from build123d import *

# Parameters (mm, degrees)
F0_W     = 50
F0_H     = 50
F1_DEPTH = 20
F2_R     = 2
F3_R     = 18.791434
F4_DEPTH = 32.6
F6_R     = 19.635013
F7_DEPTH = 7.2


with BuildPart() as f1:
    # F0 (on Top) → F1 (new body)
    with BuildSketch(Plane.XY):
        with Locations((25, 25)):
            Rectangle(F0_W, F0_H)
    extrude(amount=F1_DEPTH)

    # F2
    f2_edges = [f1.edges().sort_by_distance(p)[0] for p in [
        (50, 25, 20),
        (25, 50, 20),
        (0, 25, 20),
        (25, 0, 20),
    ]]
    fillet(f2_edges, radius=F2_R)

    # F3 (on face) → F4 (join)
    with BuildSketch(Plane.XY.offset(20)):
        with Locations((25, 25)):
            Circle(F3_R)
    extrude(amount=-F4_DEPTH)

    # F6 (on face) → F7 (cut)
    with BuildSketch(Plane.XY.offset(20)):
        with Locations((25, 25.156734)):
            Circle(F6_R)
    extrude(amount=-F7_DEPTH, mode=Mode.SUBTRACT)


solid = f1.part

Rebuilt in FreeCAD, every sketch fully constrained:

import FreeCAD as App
import Part
import Sketcher


def edges_at(feature, points):
    """Names of the edges that pass closest to the given points."""
    edges = feature.Shape.Edges
    near = lambda p: min(range(len(edges)), key=lambda i: edges[i].distToShape(Part.Vertex(*p))[0])
    return sorted({f"Edge{near(p) + 1}" for p in points})


def add_polygon(sketch, points):
    """Adds a closed chain of lines whose ends are joined by coincident constraints."""
    first, n = sketch.GeometryCount, len(points)
    for a, b in zip(points, points[1:] + points[:1]):
        sketch.addGeometry(Part.LineSegment(App.Vector(*a, 0), App.Vector(*b, 0)), False)
    for i in range(n):
        sketch.addConstraint(Sketcher.Constraint("Coincident", first + i, 2, first + (i + 1) % n, 1))

doc = App.newDocument("Part")
params = doc.addObject("Spreadsheet::Sheet", "Params")
for row, (alias, value) in enumerate([
    ("sketch1_width", "50 mm"),
    ("pad1_length", "20 mm"),
    ("fillet_radius", "2 mm"),
    ("pad2_length", "32.6 mm"),
    ("pocket1_length", "7.2 mm"),
], start=1):
    params.set(f"A{row}", alias)
    params.set(f"B{row}", "=" + value)
    params.setAlias(f"B{row}", alias)

body = doc.addObject("PartDesign::Body", "Body")

sketch1 = doc.addObject("Sketcher::SketchObject", "Sketch")
body.addObject(sketch1)
sketch1.AttachmentSupport = (doc.XY_Plane, [""])
sketch1.MapMode = "FlatFace"
add_polygon(sketch1, [(0, 50), (0, 0), (50, 0), (50, 50)])
sketch1.addConstraint(Sketcher.Constraint("Vertical", 0))
sketch1.addConstraint(Sketcher.Constraint("Horizontal", 1))
sketch1.addConstraint(Sketcher.Constraint("Vertical", 2))
sketch1.addConstraint(Sketcher.Constraint("Horizontal", 3))
sketch1.addConstraint(Sketcher.Constraint("Coincident", 0, 2, -1, 1))
sketch1.addConstraint(Sketcher.Constraint("Equal", 3, 0))
sketch1.addConstraint(Sketcher.Constraint("DistanceX", 1, 1, 1, 2, 50.0))
sketch1.setExpression("Constraints[10]", "Params.sketch1_width")
pad1 = doc.addObject("PartDesign::Pad", "Pad")
body.addObject(pad1)
pad1.Profile = sketch1
pad1.setExpression("Length", "Params.pad1_length")
doc.recompute()

fillet = doc.addObject("PartDesign::Fillet", "Fillet")
body.addObject(fillet)
fillet.Base = (pad1, edges_at(pad1, [
    (50, 25, 20),
    (25, 50, 20),
    (0, 25, 20),
    (25, 0, 20),
]))
fillet.setExpression("Radius", "Params.fillet_radius")

sketch2 = doc.addObject("Sketcher::SketchObject", "Sketch001")
body.addObject(sketch2)
sketch2.AttachmentSupport = (doc.XY_Plane, [""])
sketch2.MapMode = "FlatFace"
sketch2.AttachmentOffset = App.Placement(App.Vector(0, 0, 20), App.Rotation())
sketch2.addGeometry(Part.Circle(App.Vector(25, 25, 0), App.Vector(0, 0, 1), 19), False)
sketch2.addConstraint(Sketcher.Constraint("DistanceX", -1, 1, 0, 3, 25.0))
sketch2.addConstraint(Sketcher.Constraint("DistanceY", -1, 1, 0, 3, 25.0))
sketch2.addConstraint(Sketcher.Constraint("Diameter", 0, 37.582868))
pad2 = doc.addObject("PartDesign::Pad", "Pad001")
body.addObject(pad2)
pad2.Profile = sketch2
pad2.setExpression("Length", "Params.pad2_length")
pad2.Reversed = True

sketch3 = doc.addObject("Sketcher::SketchObject", "Sketch002")
body.addObject(sketch3)
sketch3.AttachmentSupport = (doc.XY_Plane, [""])
sketch3.MapMode = "FlatFace"
sketch3.AttachmentOffset = App.Placement(App.Vector(0, 0, 20), App.Rotation())
sketch3.addGeometry(Part.Circle(App.Vector(25, 25, 0), App.Vector(0, 0, 1), 20), False)
sketch3.addConstraint(Sketcher.Constraint("DistanceX", -1, 1, 0, 3, 25.0))
sketch3.addConstraint(Sketcher.Constraint("Diameter", 0, 39.270026))
sketch3.addConstraint(Sketcher.Constraint("DistanceY", -1, 1, 0, 3, 25.156734))
pocket1 = doc.addObject("PartDesign::Pocket", "Pocket")
body.addObject(pocket1)
pocket1.Profile = sketch3
pocket1.setExpression("Length", "Params.pocket1_length")

doc.recompute()
